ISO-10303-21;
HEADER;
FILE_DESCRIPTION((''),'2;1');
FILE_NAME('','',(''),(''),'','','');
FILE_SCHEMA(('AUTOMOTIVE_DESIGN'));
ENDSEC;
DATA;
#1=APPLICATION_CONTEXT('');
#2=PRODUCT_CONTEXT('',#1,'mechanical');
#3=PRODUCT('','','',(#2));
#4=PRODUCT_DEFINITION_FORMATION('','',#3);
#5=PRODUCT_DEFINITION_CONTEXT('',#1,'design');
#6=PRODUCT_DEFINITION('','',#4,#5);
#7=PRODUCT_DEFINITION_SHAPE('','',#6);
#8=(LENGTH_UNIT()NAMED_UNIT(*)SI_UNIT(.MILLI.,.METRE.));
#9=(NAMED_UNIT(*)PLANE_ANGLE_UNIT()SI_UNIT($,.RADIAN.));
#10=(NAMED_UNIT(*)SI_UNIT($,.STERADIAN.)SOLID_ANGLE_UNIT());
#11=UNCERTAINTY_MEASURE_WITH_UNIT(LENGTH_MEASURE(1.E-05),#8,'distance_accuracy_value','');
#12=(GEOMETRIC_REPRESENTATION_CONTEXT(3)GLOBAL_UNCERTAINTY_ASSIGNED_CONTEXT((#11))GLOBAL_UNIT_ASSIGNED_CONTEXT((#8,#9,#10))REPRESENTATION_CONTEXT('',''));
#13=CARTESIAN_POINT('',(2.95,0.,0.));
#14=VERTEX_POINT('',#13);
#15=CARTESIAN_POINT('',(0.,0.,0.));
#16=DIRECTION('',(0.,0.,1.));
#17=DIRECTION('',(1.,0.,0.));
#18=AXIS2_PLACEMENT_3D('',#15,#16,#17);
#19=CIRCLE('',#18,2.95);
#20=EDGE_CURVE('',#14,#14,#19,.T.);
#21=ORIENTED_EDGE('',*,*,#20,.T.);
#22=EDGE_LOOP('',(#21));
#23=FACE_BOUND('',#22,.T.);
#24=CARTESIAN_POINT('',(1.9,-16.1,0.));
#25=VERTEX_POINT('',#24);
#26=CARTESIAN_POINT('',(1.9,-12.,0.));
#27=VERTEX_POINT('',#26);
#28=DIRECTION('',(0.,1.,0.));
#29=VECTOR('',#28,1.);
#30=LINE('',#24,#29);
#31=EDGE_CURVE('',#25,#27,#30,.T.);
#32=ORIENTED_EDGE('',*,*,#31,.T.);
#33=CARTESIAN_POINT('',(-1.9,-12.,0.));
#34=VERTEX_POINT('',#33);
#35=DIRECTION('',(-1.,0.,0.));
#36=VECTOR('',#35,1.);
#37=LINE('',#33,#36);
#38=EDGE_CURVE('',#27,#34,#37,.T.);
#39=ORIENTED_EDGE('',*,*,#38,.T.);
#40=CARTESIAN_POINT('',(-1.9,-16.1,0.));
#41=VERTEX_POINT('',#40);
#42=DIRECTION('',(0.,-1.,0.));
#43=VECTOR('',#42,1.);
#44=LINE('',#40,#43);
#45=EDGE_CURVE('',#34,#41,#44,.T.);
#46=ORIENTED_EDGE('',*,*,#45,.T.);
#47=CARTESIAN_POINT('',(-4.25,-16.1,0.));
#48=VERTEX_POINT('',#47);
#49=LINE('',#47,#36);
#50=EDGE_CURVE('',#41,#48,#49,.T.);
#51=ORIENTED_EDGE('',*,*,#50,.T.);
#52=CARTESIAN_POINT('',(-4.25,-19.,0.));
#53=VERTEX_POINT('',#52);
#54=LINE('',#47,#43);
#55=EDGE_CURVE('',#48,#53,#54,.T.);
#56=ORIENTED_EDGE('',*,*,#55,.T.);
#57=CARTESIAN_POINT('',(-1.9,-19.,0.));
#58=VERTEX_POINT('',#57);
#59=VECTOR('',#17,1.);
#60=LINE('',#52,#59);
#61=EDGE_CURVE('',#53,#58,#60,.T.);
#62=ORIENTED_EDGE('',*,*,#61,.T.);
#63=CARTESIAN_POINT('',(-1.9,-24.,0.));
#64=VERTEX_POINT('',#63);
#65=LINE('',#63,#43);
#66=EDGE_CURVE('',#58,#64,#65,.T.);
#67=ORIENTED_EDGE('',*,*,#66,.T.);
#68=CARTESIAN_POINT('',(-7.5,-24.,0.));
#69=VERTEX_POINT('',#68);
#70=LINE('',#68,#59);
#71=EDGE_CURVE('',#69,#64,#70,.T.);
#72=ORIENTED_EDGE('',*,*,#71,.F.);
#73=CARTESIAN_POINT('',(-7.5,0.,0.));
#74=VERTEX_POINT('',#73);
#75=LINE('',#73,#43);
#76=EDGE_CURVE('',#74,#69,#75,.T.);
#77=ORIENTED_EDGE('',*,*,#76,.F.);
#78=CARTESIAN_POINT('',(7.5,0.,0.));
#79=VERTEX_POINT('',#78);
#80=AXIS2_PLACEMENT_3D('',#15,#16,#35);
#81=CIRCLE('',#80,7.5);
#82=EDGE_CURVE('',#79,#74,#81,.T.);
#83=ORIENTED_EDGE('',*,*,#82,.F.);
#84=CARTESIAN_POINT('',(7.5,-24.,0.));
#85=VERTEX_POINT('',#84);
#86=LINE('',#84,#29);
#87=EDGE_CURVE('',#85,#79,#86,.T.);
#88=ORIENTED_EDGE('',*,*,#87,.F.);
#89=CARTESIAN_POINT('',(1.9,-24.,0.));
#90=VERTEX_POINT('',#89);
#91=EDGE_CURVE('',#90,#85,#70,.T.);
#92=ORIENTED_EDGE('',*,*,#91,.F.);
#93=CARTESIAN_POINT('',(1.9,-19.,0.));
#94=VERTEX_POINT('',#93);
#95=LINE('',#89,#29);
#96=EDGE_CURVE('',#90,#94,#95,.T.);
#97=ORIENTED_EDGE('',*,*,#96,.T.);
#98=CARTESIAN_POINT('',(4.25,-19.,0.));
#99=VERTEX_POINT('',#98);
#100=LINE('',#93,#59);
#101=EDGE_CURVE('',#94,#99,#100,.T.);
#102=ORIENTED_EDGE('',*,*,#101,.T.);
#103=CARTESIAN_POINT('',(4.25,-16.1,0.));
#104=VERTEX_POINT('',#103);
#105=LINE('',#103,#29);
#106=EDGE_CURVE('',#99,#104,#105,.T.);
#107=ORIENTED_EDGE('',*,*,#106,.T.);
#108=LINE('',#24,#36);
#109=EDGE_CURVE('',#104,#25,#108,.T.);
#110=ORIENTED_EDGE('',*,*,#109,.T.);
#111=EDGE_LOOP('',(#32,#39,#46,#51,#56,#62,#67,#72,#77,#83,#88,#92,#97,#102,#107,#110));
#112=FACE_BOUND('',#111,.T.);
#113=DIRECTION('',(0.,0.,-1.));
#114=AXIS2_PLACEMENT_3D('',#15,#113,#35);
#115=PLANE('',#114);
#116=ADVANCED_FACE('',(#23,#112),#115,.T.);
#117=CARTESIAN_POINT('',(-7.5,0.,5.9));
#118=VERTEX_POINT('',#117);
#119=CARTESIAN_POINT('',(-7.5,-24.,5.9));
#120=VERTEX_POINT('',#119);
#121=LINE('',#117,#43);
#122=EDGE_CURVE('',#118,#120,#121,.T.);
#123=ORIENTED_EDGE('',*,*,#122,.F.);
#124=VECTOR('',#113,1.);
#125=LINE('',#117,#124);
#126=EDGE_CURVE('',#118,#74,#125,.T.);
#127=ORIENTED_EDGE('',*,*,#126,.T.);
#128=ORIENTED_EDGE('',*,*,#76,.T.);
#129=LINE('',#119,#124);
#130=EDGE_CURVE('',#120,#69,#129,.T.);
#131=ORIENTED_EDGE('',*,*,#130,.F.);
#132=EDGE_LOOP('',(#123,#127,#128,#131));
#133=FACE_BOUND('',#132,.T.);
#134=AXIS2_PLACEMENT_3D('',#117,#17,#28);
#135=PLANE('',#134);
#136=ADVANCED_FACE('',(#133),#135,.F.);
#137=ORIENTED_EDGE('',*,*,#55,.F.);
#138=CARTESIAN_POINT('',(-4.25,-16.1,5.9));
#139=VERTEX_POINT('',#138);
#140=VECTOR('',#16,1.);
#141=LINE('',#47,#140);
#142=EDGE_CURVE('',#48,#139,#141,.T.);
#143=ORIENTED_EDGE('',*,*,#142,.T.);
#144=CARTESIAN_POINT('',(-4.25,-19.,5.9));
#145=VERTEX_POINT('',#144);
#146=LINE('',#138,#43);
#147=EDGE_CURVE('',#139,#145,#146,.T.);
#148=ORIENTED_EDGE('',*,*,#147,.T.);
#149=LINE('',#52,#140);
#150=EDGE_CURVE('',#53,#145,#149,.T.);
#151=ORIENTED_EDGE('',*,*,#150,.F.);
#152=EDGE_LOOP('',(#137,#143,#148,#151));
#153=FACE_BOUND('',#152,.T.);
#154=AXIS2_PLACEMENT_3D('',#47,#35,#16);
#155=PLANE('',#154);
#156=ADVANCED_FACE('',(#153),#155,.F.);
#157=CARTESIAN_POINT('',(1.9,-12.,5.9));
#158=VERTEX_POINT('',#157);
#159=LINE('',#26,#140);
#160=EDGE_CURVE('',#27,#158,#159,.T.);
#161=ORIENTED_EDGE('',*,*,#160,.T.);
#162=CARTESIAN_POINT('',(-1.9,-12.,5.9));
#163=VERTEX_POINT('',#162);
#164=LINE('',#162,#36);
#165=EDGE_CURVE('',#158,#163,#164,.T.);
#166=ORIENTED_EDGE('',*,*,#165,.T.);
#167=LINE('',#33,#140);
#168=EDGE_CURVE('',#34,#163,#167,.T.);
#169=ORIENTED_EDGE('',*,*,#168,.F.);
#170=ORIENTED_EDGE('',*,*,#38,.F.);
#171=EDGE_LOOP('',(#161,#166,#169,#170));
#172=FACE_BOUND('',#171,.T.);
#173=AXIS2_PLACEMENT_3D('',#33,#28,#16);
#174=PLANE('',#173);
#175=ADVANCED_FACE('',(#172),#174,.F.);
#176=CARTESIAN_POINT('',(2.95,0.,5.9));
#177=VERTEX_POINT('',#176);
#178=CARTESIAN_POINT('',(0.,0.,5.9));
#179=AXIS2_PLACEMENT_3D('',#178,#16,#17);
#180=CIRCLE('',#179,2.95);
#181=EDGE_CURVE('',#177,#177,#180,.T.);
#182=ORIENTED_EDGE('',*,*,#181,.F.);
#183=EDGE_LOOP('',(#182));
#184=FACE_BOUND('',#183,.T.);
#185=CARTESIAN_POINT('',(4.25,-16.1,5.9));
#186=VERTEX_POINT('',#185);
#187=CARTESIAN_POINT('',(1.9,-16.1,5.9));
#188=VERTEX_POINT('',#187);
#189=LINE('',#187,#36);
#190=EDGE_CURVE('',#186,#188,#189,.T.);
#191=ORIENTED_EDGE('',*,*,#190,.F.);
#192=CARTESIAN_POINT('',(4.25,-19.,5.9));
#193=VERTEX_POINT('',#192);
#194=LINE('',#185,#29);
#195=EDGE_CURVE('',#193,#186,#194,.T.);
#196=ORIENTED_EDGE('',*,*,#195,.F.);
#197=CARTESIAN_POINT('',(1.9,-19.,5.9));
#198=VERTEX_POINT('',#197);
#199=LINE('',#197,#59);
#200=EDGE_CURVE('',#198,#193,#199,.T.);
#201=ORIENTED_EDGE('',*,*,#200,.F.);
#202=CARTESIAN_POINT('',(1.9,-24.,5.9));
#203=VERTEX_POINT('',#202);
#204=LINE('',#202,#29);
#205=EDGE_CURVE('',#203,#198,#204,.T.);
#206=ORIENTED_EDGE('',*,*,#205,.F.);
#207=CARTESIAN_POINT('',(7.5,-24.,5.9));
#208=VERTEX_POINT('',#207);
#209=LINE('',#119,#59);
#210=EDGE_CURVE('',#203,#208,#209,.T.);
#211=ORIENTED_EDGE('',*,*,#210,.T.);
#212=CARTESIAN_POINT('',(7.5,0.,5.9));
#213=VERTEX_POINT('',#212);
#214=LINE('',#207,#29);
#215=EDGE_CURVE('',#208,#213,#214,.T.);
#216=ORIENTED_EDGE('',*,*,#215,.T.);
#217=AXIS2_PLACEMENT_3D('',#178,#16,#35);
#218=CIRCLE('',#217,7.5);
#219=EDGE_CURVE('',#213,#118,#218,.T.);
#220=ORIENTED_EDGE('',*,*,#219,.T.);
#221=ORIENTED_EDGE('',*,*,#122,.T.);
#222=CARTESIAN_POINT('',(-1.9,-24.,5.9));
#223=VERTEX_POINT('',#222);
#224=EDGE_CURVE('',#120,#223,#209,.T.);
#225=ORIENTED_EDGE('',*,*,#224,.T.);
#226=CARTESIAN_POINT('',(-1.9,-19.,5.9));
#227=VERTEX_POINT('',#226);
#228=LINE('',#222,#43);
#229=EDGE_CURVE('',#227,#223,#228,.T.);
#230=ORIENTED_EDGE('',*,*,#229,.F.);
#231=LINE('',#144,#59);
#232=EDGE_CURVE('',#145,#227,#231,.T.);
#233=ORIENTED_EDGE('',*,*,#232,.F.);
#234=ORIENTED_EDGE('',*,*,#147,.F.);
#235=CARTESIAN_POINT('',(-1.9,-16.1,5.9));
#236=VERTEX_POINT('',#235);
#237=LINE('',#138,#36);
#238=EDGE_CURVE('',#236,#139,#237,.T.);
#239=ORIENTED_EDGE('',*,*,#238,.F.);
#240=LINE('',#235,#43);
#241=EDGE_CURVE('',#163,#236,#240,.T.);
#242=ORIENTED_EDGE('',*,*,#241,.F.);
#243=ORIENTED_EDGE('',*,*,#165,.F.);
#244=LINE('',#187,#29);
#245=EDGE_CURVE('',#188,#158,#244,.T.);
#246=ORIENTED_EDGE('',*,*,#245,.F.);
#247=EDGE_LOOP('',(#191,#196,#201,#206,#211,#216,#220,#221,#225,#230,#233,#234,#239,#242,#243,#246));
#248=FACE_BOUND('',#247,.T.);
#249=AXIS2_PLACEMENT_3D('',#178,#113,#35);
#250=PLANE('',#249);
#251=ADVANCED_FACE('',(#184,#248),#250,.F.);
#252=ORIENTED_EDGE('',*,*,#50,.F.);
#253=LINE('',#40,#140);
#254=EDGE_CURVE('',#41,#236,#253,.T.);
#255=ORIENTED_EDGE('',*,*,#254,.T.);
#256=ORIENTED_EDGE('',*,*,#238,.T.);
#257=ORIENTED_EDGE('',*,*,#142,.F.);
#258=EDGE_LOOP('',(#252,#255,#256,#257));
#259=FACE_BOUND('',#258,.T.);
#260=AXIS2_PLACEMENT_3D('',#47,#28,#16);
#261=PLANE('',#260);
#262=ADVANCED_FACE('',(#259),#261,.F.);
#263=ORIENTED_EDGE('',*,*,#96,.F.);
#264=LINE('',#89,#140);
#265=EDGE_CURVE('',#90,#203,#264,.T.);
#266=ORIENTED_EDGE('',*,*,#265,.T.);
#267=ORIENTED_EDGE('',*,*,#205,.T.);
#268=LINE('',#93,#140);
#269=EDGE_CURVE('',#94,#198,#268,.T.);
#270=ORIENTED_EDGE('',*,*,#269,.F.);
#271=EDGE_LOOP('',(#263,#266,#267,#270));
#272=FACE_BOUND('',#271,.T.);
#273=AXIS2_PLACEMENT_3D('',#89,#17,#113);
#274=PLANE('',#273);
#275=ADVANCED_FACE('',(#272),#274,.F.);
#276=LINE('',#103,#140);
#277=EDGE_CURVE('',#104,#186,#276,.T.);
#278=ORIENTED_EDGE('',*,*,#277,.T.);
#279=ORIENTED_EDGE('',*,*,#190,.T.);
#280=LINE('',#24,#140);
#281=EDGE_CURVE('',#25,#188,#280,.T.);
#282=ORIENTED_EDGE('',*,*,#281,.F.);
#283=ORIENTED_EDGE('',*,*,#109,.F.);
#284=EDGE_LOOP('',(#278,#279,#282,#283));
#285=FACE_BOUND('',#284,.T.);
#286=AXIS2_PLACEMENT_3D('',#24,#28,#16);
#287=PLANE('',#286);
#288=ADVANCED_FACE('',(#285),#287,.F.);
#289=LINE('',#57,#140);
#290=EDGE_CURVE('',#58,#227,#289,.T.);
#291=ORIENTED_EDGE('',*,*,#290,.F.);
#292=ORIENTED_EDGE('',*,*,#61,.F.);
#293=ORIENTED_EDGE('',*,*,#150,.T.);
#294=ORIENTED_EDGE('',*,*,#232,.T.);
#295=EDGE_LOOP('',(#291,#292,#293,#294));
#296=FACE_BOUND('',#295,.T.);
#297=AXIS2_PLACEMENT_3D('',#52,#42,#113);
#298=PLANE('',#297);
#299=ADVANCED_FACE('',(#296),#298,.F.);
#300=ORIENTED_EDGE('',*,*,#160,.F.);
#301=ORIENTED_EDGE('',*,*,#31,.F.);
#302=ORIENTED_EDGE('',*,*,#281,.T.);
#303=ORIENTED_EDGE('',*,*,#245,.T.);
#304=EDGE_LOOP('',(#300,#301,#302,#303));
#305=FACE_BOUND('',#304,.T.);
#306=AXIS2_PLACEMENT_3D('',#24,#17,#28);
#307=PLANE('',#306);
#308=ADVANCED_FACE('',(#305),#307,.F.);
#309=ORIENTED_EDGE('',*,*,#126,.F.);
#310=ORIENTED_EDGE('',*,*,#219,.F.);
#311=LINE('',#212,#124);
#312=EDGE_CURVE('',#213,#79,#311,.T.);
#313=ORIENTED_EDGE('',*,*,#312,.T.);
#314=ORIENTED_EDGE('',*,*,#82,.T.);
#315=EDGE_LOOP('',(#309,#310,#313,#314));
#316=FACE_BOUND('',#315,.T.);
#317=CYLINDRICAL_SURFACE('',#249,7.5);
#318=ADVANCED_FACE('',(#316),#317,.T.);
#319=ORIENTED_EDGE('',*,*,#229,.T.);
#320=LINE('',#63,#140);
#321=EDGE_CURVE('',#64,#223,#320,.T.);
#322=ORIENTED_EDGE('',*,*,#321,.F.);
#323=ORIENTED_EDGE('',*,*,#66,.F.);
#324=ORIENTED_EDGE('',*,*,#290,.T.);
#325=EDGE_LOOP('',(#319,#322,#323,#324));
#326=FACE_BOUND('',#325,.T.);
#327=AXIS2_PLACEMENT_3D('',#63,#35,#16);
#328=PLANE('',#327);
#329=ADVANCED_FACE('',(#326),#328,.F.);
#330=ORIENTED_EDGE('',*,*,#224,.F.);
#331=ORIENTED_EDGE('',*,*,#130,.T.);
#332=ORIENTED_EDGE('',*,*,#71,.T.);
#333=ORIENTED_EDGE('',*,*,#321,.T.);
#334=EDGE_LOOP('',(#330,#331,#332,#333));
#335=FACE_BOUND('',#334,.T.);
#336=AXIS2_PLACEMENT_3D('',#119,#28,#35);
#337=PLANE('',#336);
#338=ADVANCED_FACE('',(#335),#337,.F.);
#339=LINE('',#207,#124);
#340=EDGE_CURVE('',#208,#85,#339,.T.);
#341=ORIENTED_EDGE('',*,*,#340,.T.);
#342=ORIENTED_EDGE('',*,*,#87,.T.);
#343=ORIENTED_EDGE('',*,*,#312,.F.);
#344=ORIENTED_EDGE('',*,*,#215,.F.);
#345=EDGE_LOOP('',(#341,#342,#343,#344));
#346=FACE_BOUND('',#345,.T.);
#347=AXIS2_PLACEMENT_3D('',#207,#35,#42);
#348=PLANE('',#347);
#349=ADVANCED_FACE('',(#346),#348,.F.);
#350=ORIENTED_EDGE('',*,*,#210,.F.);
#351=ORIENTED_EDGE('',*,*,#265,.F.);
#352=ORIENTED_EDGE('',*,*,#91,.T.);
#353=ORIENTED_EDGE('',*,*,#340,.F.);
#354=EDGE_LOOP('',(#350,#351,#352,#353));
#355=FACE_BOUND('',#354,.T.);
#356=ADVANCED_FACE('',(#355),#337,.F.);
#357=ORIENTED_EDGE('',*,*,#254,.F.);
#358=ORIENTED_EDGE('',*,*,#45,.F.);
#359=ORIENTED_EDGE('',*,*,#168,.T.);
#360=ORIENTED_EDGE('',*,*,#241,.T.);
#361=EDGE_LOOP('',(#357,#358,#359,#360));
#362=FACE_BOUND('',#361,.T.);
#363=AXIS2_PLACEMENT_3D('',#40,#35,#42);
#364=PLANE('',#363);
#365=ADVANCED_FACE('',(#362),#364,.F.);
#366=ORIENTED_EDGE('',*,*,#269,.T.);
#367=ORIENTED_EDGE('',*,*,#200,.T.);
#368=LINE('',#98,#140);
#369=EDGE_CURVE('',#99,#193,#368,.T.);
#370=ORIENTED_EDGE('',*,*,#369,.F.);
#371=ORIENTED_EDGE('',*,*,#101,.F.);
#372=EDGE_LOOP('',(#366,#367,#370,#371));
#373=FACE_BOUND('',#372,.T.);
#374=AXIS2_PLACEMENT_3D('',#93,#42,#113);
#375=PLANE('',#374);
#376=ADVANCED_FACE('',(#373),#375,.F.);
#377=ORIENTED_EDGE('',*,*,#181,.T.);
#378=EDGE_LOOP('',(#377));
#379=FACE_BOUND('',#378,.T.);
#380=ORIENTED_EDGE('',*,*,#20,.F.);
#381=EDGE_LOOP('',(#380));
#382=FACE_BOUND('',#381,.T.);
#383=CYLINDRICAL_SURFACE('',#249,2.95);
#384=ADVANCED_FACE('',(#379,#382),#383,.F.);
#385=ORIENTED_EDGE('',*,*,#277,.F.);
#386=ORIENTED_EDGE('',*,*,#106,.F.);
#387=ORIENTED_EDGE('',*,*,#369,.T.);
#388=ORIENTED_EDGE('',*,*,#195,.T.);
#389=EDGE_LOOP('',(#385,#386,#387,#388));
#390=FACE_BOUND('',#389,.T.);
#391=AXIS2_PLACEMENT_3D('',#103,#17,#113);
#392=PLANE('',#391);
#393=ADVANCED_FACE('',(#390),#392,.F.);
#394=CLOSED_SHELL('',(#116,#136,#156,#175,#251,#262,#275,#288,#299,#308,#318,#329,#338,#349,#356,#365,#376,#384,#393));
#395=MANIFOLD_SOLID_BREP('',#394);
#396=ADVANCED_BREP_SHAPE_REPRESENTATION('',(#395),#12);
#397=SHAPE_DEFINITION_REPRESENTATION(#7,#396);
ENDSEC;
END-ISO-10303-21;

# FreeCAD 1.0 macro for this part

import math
import FreeCAD as App
import Part
import Sketcher

V = App.Vector


def add_polygon(sketch, points):
    """Adds a closed chain of lines whose ends are joined by coincident constraints."""
    first, n = sketch.GeometryCount, len(points)
    for a, b in zip(points, points[1:] + points[:1]):
        sketch.addGeometry(Part.LineSegment(App.Vector(*a, 0), App.Vector(*b, 0)), False)
    for i in range(n):
        sketch.addConstraint(Sketcher.Constraint("Coincident", first + i, 2, first + (i + 1) % n, 1))

doc = App.newDocument("Part")
body = doc.addObject("PartDesign::Body", "Body")

# Sketch on XY plane
sketch1 = body.newObject("Sketcher::SketchObject", "Sketch")
sketch1.AttachmentSupport = (doc.getObject("XY_Plane"), [""])
sketch1.MapMode = "FlatFace"
sketch1.addGeometry([
    Part.LineSegment(V(-7.5, 0, 0), V(-7.5, -24, 0)),  # 0
    Part.LineSegment(V(-7.5, -24, 0), V(7.5, -24, 0)),  # 1
    Part.LineSegment(V(7.5, -24, 0), V(7.5, 0, 0)),  # 2
    Part.ArcOfCircle(Part.Circle(V(0, 0, 0), V(0, 0, 1), 7.5), math.radians(0), math.radians(180)),  # 3
    Part.Circle(V(0, 0, 0), V(0, 0, 1), 3),  # 4
], False)
sketch1.addConstraint([
    Sketcher.Constraint("Coincident", 0, 2, 1, 1),
    Sketcher.Constraint("Coincident", 1, 2, 2, 1),
    Sketcher.Constraint("Tangent", 2, 2, 3, 1),
    Sketcher.Constraint("Tangent", 3, 2, 0, 1),
    Sketcher.Constraint("Vertical", 0),
    Sketcher.Constraint("Horizontal", 1),
    Sketcher.Constraint("Vertical", 2),
    Sketcher.Constraint("Coincident", 3, 3, -1, 1),
    Sketcher.Constraint("Coincident", 4, 3, -1, 1),
    Sketcher.Constraint("Diameter", 4, 5.9),
    Sketcher.Constraint("Radius", 3, 7.5),
    Sketcher.Constraint("DistanceY", 0, 2, 0, 1, 24.0),
])
pad1 = body.newObject("PartDesign::Pad", "Pad")
pad1.Profile = sketch1
pad1.Length = 5.9

# Sketch on XY plane
sketch2 = body.newObject("Sketcher::SketchObject", "Sketch001")
sketch2.AttachmentSupport = (doc.getObject("XY_Plane"), [""])
sketch2.MapMode = "FlatFace"
sketch2.AttachmentOffset = App.Placement(V(0, 0, 5.9), App.Rotation())
add_polygon(sketch2, [(-1.9, -24), (1.9, -24), (1.9, -19), (4.2, -19), (4.2, -16.1), (1.9, -16.1), (1.9, -12), (-1.9, -12), (-1.9, -16.1), (-4.2, -16.1), (-4.2, -19), (-1.9, -19)])  # lines 0-11
sketch2.addConstraint([
    Sketcher.Constraint("Horizontal", 0),
    Sketcher.Constraint("Vertical", 1),
    Sketcher.Constraint("Horizontal", 2),
    Sketcher.Constraint("Vertical", 3),
    Sketcher.Constraint("Horizontal", 4),
    Sketcher.Constraint("Vertical", 5),
    Sketcher.Constraint("Horizontal", 6),
    Sketcher.Constraint("Vertical", 7),
    Sketcher.Constraint("Horizontal", 8),
    Sketcher.Constraint("Vertical", 9),
    Sketcher.Constraint("Horizontal", 10),
    Sketcher.Constraint("Vertical", 11),
    Sketcher.Constraint("Symmetric", 4, 2, 7, 2, -2),
    Sketcher.Constraint("Symmetric", 2, 2, 9, 2, -2),
    Sketcher.Constraint("Vertical", 1, 2, 4, 2),
    Sketcher.Constraint("Vertical", 7, 2, 10, 2),
    Sketcher.Constraint("DistanceY", 1, 1, 1, 2, 5.0),
    Sketcher.Constraint("DistanceX", 0, 1, 0, 2, 3.8),
    Sketcher.Constraint("DistanceY", 3, 1, 3, 2, 2.9),
    Sketcher.Constraint("DistanceY", 5, 1, 5, 2, 4.1),
    Sketcher.Constraint("DistanceY", 0, 2, -1, 1, 24.0),
    Sketcher.Constraint("DistanceX", 2, 1, 2, 2, 2.35),
])
pocket1 = body.newObject("PartDesign::Pocket", "Pocket")
pocket1.Profile = sketch2
pocket1.Type = "ThroughAll"

doc.recompute()
